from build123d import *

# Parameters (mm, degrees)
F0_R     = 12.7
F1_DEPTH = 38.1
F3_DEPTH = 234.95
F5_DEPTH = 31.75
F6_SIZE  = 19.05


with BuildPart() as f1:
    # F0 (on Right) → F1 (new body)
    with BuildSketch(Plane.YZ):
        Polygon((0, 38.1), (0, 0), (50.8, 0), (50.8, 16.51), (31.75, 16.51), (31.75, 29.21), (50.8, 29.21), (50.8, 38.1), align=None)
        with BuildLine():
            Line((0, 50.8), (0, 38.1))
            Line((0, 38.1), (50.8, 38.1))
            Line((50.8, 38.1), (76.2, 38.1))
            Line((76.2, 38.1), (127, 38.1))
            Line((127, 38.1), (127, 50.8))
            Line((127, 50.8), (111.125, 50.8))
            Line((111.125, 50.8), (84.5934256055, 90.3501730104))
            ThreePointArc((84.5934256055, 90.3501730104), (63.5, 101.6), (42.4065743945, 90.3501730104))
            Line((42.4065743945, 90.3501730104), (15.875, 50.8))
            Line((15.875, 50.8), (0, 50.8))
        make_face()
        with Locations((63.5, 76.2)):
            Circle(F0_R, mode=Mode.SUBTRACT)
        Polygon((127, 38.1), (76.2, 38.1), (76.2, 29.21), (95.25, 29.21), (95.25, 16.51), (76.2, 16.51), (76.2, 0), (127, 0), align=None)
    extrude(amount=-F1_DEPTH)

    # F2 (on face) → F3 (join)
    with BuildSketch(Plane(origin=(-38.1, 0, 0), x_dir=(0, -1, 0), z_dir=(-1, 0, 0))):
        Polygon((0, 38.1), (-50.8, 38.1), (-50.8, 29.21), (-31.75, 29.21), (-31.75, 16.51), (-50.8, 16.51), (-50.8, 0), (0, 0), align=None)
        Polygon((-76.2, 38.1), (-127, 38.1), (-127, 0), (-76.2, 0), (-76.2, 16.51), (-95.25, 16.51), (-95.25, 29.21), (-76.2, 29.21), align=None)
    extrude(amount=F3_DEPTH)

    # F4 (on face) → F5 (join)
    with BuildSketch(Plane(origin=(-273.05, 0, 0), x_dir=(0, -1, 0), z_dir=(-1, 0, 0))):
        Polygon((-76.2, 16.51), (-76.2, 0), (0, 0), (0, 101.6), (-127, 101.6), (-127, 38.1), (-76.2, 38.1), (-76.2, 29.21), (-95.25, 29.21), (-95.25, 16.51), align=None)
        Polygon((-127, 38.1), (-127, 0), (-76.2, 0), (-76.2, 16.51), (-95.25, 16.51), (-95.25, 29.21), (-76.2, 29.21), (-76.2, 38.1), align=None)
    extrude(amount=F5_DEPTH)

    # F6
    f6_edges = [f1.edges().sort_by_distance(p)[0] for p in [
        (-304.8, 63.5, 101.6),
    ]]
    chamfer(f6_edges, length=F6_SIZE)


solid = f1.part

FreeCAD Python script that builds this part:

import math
import FreeCAD as App
import Part
import Sketcher
from FreeCAD import Vector
Q = App.Units.Quantity


def edges_at(feature, points):
    """Names of the edges that pass closest to the given points."""
    edges = feature.Shape.Edges
    near = lambda p: min(range(len(edges)), key=lambda i: edges[i].distToShape(Part.Vertex(*p))[0])
    return sorted({f"Edge{near(p) + 1}" for p in points})

doc = App.newDocument("Part")
body = doc.addObject("PartDesign::Body", "Body")

# Sketch on YZ plane
sketch1 = body.newObject("Sketcher::SketchObject", "Sketch")
sketch1.AttachmentSupport = (doc.getObject("YZ_Plane"), [""])
sketch1.MapMode = "FlatFace"
sketch1.addGeometry([
    Part.LineSegment(Vector(0, 0, 0), Vector(51, 0, 0)),  # 0
    Part.LineSegment(Vector(51, 0, 0), Vector(51, 17, 0)),  # 1
    Part.LineSegment(Vector(51, 17, 0), Vector(32, 17, 0)),  # 2
    Part.LineSegment(Vector(32, 17, 0), Vector(32, 29, 0)),  # 3
    Part.LineSegment(Vector(32, 29, 0), Vector(51, 29, 0)),  # 4
    Part.LineSegment(Vector(51, 29, 0), Vector(51, 38, 0)),  # 5
    Part.LineSegment(Vector(51, 38, 0), Vector(76, 38, 0)),  # 6
    Part.LineSegment(Vector(76, 38, 0), Vector(76, 29, 0)),  # 7
    Part.LineSegment(Vector(76, 29, 0), Vector(95, 29, 0)),  # 8
    Part.LineSegment(Vector(95, 29, 0), Vector(95, 17, 0)),  # 9
    Part.LineSegment(Vector(95, 17, 0), Vector(76, 17, 0)),  # 10
    Part.LineSegment(Vector(76, 17, 0), Vector(76, 0, 0)),  # 11
    Part.LineSegment(Vector(76, 0, 0), Vector(127, 0, 0)),  # 12
    Part.LineSegment(Vector(127, 0, 0), Vector(127, 51, 0)),  # 13
    Part.LineSegment(Vector(127, 51, 0), Vector(111, 51, 0)),  # 14
    Part.LineSegment(Vector(111, 51, 0), Vector(85, 90, 0)),  # 15
    Part.ArcOfCircle(Part.Circle(Vector(64, 76, 0), Vector(0, 0, 1), 25), math.radians(34), math.radians(146)),  # 16
    Part.LineSegment(Vector(42, 90, 0), Vector(16, 51, 0)),  # 17
    Part.LineSegment(Vector(16, 51, 0), Vector(0, 51, 0)),  # 18
    Part.LineSegment(Vector(0, 51, 0), Vector(0, 0, 0)),  # 19
    Part.Circle(Vector(64, 76, 0), Vector(0, 0, 1), 13),  # 20
], False)
sketch1.addConstraint([
    Sketcher.Constraint("Coincident", 0, 2, 1, 1),
    Sketcher.Constraint("Coincident", 1, 2, 2, 1),
    Sketcher.Constraint("Coincident", 2, 2, 3, 1),
    Sketcher.Constraint("Coincident", 3, 2, 4, 1),
    Sketcher.Constraint("Coincident", 4, 2, 5, 1),
    Sketcher.Constraint("Coincident", 5, 2, 6, 1),
    Sketcher.Constraint("Coincident", 6, 2, 7, 1),
    Sketcher.Constraint("Coincident", 7, 2, 8, 1),
    Sketcher.Constraint("Coincident", 8, 2, 9, 1),
    Sketcher.Constraint("Coincident", 9, 2, 10, 1),
    Sketcher.Constraint("Coincident", 10, 2, 11, 1),
    Sketcher.Constraint("Coincident", 11, 2, 12, 1),
    Sketcher.Constraint("Coincident", 12, 2, 13, 1),
    Sketcher.Constraint("Coincident", 13, 2, 14, 1),
    Sketcher.Constraint("Coincident", 14, 2, 15, 1),
    Sketcher.Constraint("Tangent", 15, 2, 16, 1),
    Sketcher.Constraint("Tangent", 16, 2, 17, 1),
    Sketcher.Constraint("Coincident", 17, 2, 18, 1),
    Sketcher.Constraint("Coincident", 18, 2, 19, 1),
    Sketcher.Constraint("Coincident", 19, 2, 0, 1),
    Sketcher.Constraint("Horizontal", 0),
    Sketcher.Constraint("Vertical", 1),
    Sketcher.Constraint("Horizontal", 2),
    Sketcher.Constraint("Vertical", 3),
    Sketcher.Constraint("Horizontal", 4),
    Sketcher.Constraint("Vertical", 5),
    Sketcher.Constraint("Horizontal", 6),
    Sketcher.Constraint("Vertical", 7),
    Sketcher.Constraint("Horizontal", 8),
    Sketcher.Constraint("Vertical", 9),
    Sketcher.Constraint("Horizontal", 10),
    Sketcher.Constraint("Vertical", 11),
    Sketcher.Constraint("Horizontal", 12),
    Sketcher.Constraint("Vertical", 13),
    Sketcher.Constraint("Horizontal", 14),
    Sketcher.Constraint("Horizontal", 18),
    Sketcher.Constraint("Vertical", 19),
    Sketcher.Constraint("Coincident", 19, 2, -1, 1),
    Sketcher.Constraint("Coincident", 20, 3, 16, 3),
    Sketcher.Constraint("PointOnObject", 11, 2, -1),
    Sketcher.Constraint("Horizontal", 4, 2, 7, 2),
    Sketcher.Constraint("Horizontal", 2, 2, 9, 2),
    Sketcher.Constraint("Horizontal", 15, 2, 16, 2),
    Sketcher.Constraint("Horizontal", 14, 2, 17, 2),
    Sketcher.Constraint("Vertical", 1, 2, 4, 2),
    Sketcher.Constraint("Vertical", 7, 2, 10, 2),
    Sketcher.Constraint("Equal", 4, 8),
    Sketcher.Constraint("Equal", 0, 12),
    Sketcher.Constraint("Equal", 14, 18),
    Sketcher.Constraint("Equal", 12, 13),
    Sketcher.Constraint("Diameter", 20, Q("1 in")),
    Sketcher.Constraint("Radius", 16, Q("1 in")),
    Sketcher.Constraint("DistanceX", 0, 1, 0, 2, Q("2 in")),
    Sketcher.Constraint("DistanceX", 6, 1, 6, 2, Q("1 in")),
    Sketcher.Constraint("DistanceY", 3, 1, 3, 2, Q("0.5 in")),
    Sketcher.Constraint("DistanceY", -1, 1, 16, 3, Q("3 in")),
    Sketcher.Constraint("DistanceX", 2, 2, 2, 1, Q("0.75 in")),
    Sketcher.Constraint("DistanceY", 1, 1, 1, 2, Q("0.65 in")),
    Sketcher.Constraint("DistanceY", 5, 1, 5, 2, Q("0.35 in")),
    Sketcher.Constraint("DistanceX", 14, 2, 14, 1, Q("0.625 in")),
])
pad1 = body.newObject("PartDesign::Pad", "Pad")
pad1.Profile = sketch1
pad1.Length = Q("1.5 in")
pad1.Reversed = True

# Sketch on YZ plane
sketch2 = body.newObject("Sketcher::SketchObject", "Sketch001")
sketch2.AttachmentSupport = (doc.getObject("YZ_Plane"), [""])
sketch2.MapMode = "FlatFace"
sketch2.AttachmentOffset = App.Placement(Vector(0, 0, -1.5 * 25.4), App.Rotation())
sketch2.addGeometry([
    Part.LineSegment(Vector(0, 38, 0), Vector(51, 38, 0)),  # 0
    Part.LineSegment(Vector(51, 38, 0), Vector(51, 29, 0)),  # 1
    Part.LineSegment(Vector(51, 29, 0), Vector(32, 29, 0)),  # 2
    Part.LineSegment(Vector(32, 29, 0), Vector(32, 17, 0)),  # 3
    Part.LineSegment(Vector(32, 17, 0), Vector(51, 17, 0)),  # 4
    Part.LineSegment(Vector(51, 17, 0), Vector(51, 0, 0)),  # 5
    Part.LineSegment(Vector(51, 0, 0), Vector(0, 0, 0)),  # 6
    Part.LineSegment(Vector(0, 0, 0), Vector(0, 38, 0)),  # 7
    Part.LineSegment(Vector(76, 38, 0), Vector(127, 38, 0)),  # 8
    Part.LineSegment(Vector(127, 38, 0), Vector(127, 0, 0)),  # 9
    Part.LineSegment(Vector(127, 0, 0), Vector(76, 0, 0)),  # 10
    Part.LineSegment(Vector(76, 0, 0), Vector(76, 17, 0)),  # 11
    Part.LineSegment(Vector(76, 17, 0), Vector(95, 17, 0)),  # 12
    Part.LineSegment(Vector(95, 17, 0), Vector(95, 29, 0)),  # 13
    Part.LineSegment(Vector(95, 29, 0), Vector(76, 29, 0)),  # 14
    Part.LineSegment(Vector(76, 29, 0), Vector(76, 38, 0)),  # 15
], False)
sketch2.addConstraint([
    Sketcher.Constraint("Coincident", 0, 2, 1, 1),
    Sketcher.Constraint("Coincident", 1, 2, 2, 1),
    Sketcher.Constraint("Coincident", 2, 2, 3, 1),
    Sketcher.Constraint("Coincident", 3, 2, 4, 1),
    Sketcher.Constraint("Coincident", 4, 2, 5, 1),
    Sketcher.Constraint("Coincident", 5, 2, 6, 1),
    Sketcher.Constraint("Coincident", 6, 2, 7, 1),
    Sketcher.Constraint("Coincident", 7, 2, 0, 1),
    Sketcher.Constraint("Coincident", 8, 2, 9, 1),
    Sketcher.Constraint("Coincident", 9, 2, 10, 1),
    Sketcher.Constraint("Coincident", 10, 2, 11, 1),
    Sketcher.Constraint("Coincident", 11, 2, 12, 1),
    Sketcher.Constraint("Coincident", 12, 2, 13, 1),
    Sketcher.Constraint("Coincident", 13, 2, 14, 1),
    Sketcher.Constraint("Coincident", 14, 2, 15, 1),
    Sketcher.Constraint("Coincident", 15, 2, 8, 1),
    Sketcher.Constraint("Horizontal", 0),
    Sketcher.Constraint("Vertical", 1),
    Sketcher.Constraint("Horizontal", 2),
    Sketcher.Constraint("Vertical", 3),
    Sketcher.Constraint("Horizontal", 4),
    Sketcher.Constraint("Vertical", 5),
    Sketcher.Constraint("Horizontal", 6),
    Sketcher.Constraint("Vertical", 7),
    Sketcher.Constraint("Horizontal", 8),
    Sketcher.Constraint("Vertical", 9),
    Sketcher.Constraint("Horizontal", 10),
    Sketcher.Constraint("Vertical", 11),
    Sketcher.Constraint("Horizontal", 12),
    Sketcher.Constraint("Vertical", 13),
    Sketcher.Constraint("Horizontal", 14),
    Sketcher.Constraint("Vertical", 15),
    Sketcher.Constraint("Coincident", 6, 2, -1, 1),
    Sketcher.Constraint("PointOnObject", 9, 2, -1),
    Sketcher.Constraint("Horizontal", 7, 2, 8, 2),
    Sketcher.Constraint("Horizontal", 4, 2, 11, 2),
    Sketcher.Constraint("Horizontal", 2, 2, 13, 2),
    Sketcher.Constraint("Vertical", 1, 2, 4, 2),
    Sketcher.Constraint("Vertical", 11, 2, 14, 2),
    Sketcher.Constraint("Equal", 6, 8),
    Sketcher.Constraint("Equal", 4, 12),
    Sketcher.Constraint("DistanceX", 0, 1, 0, 2, Q("2 in")),
    Sketcher.Constraint("DistanceY", 3, 2, 3, 1, Q("0.5 in")),
    Sketcher.Constraint("DistanceY", 7, 1, 7, 2, Q("1.5 in")),
    Sketcher.Constraint("DistanceX", -1, 1, 8, 2, Q("5 in")),
    Sketcher.Constraint("DistanceX", 2, 2, 2, 1, Q("0.75 in")),
    Sketcher.Constraint("DistanceY", 1, 2, 1, 1, Q("0.35 in")),
])
pad2 = body.newObject("PartDesign::Pad", "Pad001")
pad2.Profile = sketch2
pad2.Length = Q("9.25 in")
pad2.Reversed = True

# Sketch on YZ plane
sketch3 = body.newObject("Sketcher::SketchObject", "Sketch002")
sketch3.AttachmentSupport = (doc.getObject("YZ_Plane"), [""])
sketch3.MapMode = "FlatFace"
sketch3.AttachmentOffset = App.Placement(Vector(0, 0, -10.75 * 25.4), App.Rotation())
sketch3.addGeometry([
    Part.LineSegment(Vector(0, 0, 0), Vector(0, 102, 0)),
    Part.LineSegment(Vector(0, 102, 0), Vector(127, 102, 0)),
    Part.LineSegment(Vector(127, 102, 0), Vector(127, 0, 0)),
    Part.LineSegment(Vector(127, 0, 0), Vector(0, 0, 0)),
], False)
sketch3.addConstraint([
    Sketcher.Constraint("Coincident", 0, 2, 1, 1),
    Sketcher.Constraint("Coincident", 1, 2, 2, 1),
    Sketcher.Constraint("Coincident", 2, 2, 3, 1),
    Sketcher.Constraint("Coincident", 3, 2, 0, 1),
    Sketcher.Constraint("Vertical", 0),
    Sketcher.Constraint("Horizontal", 1),
    Sketcher.Constraint("Vertical", 2),
    Sketcher.Constraint("Horizontal", 3),
    Sketcher.Constraint("Coincident", 3, 2, -1, 1),
    Sketcher.Constraint("DistanceX", 1, 1, 1, 2, Q("5 in")),
    Sketcher.Constraint("DistanceY", 0, 1, 0, 2, Q("4 in")),
])
pad3 = body.newObject("PartDesign::Pad", "Pad002")
pad3.Profile = sketch3
pad3.Length = Q("1.25 in")
pad3.Reversed = True
doc.recompute()

chamfer = body.newObject("PartDesign::Chamfer", "Chamfer")
chamfer.Base = (pad3, edges_at(pad3, [(-304.8, 63.5, 101.6)]))
chamfer.Size = Q("0.75 in")

doc.recompute()
